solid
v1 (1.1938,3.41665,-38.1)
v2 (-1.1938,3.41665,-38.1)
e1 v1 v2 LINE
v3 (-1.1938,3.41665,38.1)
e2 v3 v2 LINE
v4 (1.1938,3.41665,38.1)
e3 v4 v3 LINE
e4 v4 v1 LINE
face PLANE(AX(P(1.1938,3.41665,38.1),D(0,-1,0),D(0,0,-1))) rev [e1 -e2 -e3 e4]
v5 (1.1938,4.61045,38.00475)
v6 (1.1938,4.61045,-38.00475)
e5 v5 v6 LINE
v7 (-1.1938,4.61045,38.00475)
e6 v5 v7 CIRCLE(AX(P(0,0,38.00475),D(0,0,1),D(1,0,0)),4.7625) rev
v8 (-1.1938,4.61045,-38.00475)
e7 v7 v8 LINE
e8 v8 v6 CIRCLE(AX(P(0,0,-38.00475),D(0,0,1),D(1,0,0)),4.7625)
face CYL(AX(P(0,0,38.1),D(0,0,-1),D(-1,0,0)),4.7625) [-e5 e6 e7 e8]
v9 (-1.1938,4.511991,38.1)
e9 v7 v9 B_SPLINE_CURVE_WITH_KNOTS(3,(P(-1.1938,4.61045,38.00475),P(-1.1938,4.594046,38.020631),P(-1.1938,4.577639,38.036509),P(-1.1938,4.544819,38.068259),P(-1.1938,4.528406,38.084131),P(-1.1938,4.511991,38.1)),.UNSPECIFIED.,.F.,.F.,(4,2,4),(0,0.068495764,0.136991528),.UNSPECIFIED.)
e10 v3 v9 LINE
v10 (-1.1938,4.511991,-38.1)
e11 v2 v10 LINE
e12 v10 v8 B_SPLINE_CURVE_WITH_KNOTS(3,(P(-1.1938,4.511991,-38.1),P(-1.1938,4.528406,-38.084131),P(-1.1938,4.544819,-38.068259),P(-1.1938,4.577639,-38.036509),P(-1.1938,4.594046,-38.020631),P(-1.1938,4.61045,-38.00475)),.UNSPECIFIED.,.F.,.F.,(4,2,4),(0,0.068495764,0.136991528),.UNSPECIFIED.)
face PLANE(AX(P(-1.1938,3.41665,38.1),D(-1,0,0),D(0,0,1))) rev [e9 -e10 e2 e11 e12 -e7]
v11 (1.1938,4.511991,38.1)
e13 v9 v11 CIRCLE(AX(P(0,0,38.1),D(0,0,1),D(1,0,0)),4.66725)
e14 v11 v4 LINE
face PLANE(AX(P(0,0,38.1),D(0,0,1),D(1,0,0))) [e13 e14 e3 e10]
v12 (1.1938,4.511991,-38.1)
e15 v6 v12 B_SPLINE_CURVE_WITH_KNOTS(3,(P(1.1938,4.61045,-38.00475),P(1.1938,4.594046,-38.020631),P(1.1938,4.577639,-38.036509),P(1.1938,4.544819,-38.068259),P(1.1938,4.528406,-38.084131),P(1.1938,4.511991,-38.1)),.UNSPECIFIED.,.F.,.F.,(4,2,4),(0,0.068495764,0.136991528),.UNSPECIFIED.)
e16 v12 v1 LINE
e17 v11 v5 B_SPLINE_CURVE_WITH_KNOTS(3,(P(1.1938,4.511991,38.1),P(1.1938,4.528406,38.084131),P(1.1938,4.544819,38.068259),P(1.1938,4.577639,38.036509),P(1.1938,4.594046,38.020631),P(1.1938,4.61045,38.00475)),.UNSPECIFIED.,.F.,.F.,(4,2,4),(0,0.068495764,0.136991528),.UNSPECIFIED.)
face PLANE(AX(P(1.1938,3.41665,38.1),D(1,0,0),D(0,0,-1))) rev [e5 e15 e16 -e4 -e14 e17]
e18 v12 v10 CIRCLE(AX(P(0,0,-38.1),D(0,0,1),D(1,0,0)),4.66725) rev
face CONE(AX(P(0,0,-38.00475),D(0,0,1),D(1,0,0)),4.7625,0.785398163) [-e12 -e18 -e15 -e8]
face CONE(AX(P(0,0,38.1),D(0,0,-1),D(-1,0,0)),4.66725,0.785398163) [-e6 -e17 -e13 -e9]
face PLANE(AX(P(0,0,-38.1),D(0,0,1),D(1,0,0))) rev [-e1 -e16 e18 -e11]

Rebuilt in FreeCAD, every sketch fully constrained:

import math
import FreeCAD as App
import Part
import Sketcher

V = App.Vector
Q = App.Units.Quantity


def edges_at(feature, points):
    """Names of the edges that pass closest to the given points."""
    edges = feature.Shape.Edges
    near = lambda p: min(range(len(edges)), key=lambda i: edges[i].distToShape(Part.Vertex(*p))[0])
    return sorted({f"Edge{near(p) + 1}" for p in points})

doc = App.newDocument("Part")
body = doc.addObject("PartDesign::Body", "Body")

sketch1 = body.newObject("Sketcher::SketchObject", "Sketch")
sketch1.AttachmentSupport = (doc.getObject("XY_Plane"), [""])
sketch1.MapMode = "FlatFace"
sketch1.addGeometry(Part.LineSegment(V(-1.2, 3.4, 0), V(-1.2, 4.6, 0)), False)
sketch1.addGeometry(Part.ArcOfCircle(Part.Circle(V(0, 0, 0), V(0, 0, 1), 4.8), math.radians(105), math.radians(435)), False)
sketch1.addGeometry(Part.LineSegment(V(1.2, 4.6, 0), V(1.2, 3.4, 0)), False)
sketch1.addGeometry(Part.LineSegment(V(1.2, 3.4, 0), V(-1.2, 3.4, 0)), False)
sketch1.addConstraint(Sketcher.Constraint("Coincident", 0, 2, 1, 1))
sketch1.addConstraint(Sketcher.Constraint("Coincident", 1, 2, 2, 1))
sketch1.addConstraint(Sketcher.Constraint("Coincident", 2, 2, 3, 1))
sketch1.addConstraint(Sketcher.Constraint("Coincident", 3, 2, 0, 1))
sketch1.addConstraint(Sketcher.Constraint("Vertical", 0))
sketch1.addConstraint(Sketcher.Constraint("Vertical", 2))
sketch1.addConstraint(Sketcher.Constraint("Horizontal", 3))
sketch1.addConstraint(Sketcher.Constraint("Coincident", 1, 3, -1, 1))
sketch1.addConstraint(Sketcher.Constraint("Horizontal", 0, 2, 1, 2))
sketch1.addConstraint(Sketcher.Constraint("Radius", 1, Q("0.1875 in")))
sketch1.addConstraint(Sketcher.Constraint("DistanceX", 3, 2, 3, 1, Q("0.094 in")))
sketch1.addConstraint(Sketcher.Constraint("DistanceY", 0, 1, 0, 2, Q("0.047 in")))
pad1 = body.newObject("PartDesign::Pad", "Pad")
pad1.Profile = sketch1
pad1.Type = "TwoLengths"
pad1.Length = Q("1.5 in")
pad1.Length2 = Q("1.5 in")
doc.recompute()

chamfer = body.newObject("PartDesign::Chamfer", "Chamfer")
chamfer.Base = (pad1, edges_at(pad1, [(0, -4.763, -38.1), (0, -4.763, 38.1)]))
chamfer.Size = 0.09525

doc.recompute()
